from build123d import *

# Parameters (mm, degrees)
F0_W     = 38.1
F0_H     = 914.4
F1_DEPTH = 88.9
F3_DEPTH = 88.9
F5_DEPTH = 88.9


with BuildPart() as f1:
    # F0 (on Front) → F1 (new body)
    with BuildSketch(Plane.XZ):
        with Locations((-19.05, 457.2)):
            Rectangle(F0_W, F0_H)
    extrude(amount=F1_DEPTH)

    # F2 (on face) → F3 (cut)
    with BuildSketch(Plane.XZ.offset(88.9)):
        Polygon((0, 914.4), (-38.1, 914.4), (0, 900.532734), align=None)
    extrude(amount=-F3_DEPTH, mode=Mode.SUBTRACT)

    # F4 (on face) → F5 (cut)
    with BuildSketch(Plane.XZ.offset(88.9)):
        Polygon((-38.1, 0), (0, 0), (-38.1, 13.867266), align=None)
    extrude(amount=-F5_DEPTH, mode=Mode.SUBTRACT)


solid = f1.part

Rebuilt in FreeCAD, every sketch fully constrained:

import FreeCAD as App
import Part
import Sketcher

V = App.Vector
Q = App.Units.Quantity

doc = App.newDocument("Part")
body = doc.addObject("PartDesign::Body", "Body")

# Sketch on XZ plane
sketch1 = body.newObject("Sketcher::SketchObject", "Sketch")
sketch1.AttachmentSupport = (doc.getObject("XZ_Plane"), [""])
sketch1.MapMode = "FlatFace"
sketch1.addGeometry([
    Part.LineSegment(V(-38.1, 914.4, 0), V(-38.1, 0, 0)),
    Part.LineSegment(V(-38.1, 0, 0), V(0, 0, 0)),
    Part.LineSegment(V(0, 0, 0), V(0, 914.4, 0)),
    Part.LineSegment(V(0, 914.4, 0), V(-38.1, 914.4, 0)),
], False)
sketch1.addConstraint([
    Sketcher.Constraint("Coincident", 0, 2, 1, 1),
    Sketcher.Constraint("Coincident", 1, 2, 2, 1),
    Sketcher.Constraint("Coincident", 2, 2, 3, 1),
    Sketcher.Constraint("Coincident", 3, 2, 0, 1),
    Sketcher.Constraint("Vertical", 0),
    Sketcher.Constraint("Horizontal", 1),
    Sketcher.Constraint("Vertical", 2),
    Sketcher.Constraint("Horizontal", 3),
    Sketcher.Constraint("Coincident", 1, 2, -1, 1),
    Sketcher.Constraint("DistanceY", 0, 2, 0, 1, Q("36 in")),
    Sketcher.Constraint("DistanceX", 1, 1, 1, 2, Q("1.5 in")),
])
pad1 = body.newObject("PartDesign::Pad", "Pad")
pad1.Profile = sketch1
pad1.Length = Q("3.5 in")

# Sketch on XZ plane
sketch2 = body.newObject("Sketcher::SketchObject", "Sketch001")
sketch2.AttachmentSupport = (doc.getObject("XZ_Plane"), [""])
sketch2.MapMode = "FlatFace"
sketch2.AttachmentOffset = App.Placement(V(0, 0, 3.5 * 25.4), App.Rotation())
sketch2.addGeometry([
    Part.LineSegment(V(0, 914.4, 0), V(-38.1, 914.4, 0)),
    Part.LineSegment(V(-38.1, 914.4, 0), V(0, 900.532734, 0)),
    Part.LineSegment(V(0, 900.532734, 0), V(0, 914.4, 0)),
], False)
sketch2.addConstraint([
    Sketcher.Constraint("Coincident", 0, 2, 1, 1),
    Sketcher.Constraint("Coincident", 1, 2, 2, 1),
    Sketcher.Constraint("Coincident", 2, 2, 0, 1),
    Sketcher.Constraint("Horizontal", 0),
    Sketcher.Constraint("Vertical", 2),
    Sketcher.Constraint("PointOnObject", 1, 2, -2),
    Sketcher.Constraint("DistanceX", 0, 2, 0, 1, Q("1.5 in")),
    Sketcher.Constraint("DistanceY", -1, 1, 0, 2, Q("36 in")),
    Sketcher.Constraint("Angle", 1, Q("-20 deg")),
])
pocket1 = body.newObject("PartDesign::Pocket", "Pocket")
pocket1.Profile = sketch2
pocket1.Length = Q("3.5 in")

# Sketch on XZ plane
sketch3 = body.newObject("Sketcher::SketchObject", "Sketch002")
sketch3.AttachmentSupport = (doc.getObject("XZ_Plane"), [""])
sketch3.MapMode = "FlatFace"
sketch3.AttachmentOffset = App.Placement(V(0, 0, 3.5 * 25.4), App.Rotation())
sketch3.addGeometry([
    Part.LineSegment(V(-38.1, 0, 0), V(0, 0, 0)),
    Part.LineSegment(V(0, 0, 0), V(-38.1, 13.867266, 0)),
    Part.LineSegment(V(-38.1, 13.867266, 0), V(-38.1, 0, 0)),
], False)
sketch3.addConstraint([
    Sketcher.Constraint("Coincident", 0, 2, 1, 1),
    Sketcher.Constraint("Coincident", 1, 2, 2, 1),
    Sketcher.Constraint("Coincident", 2, 2, 0, 1),
    Sketcher.Constraint("Horizontal", 0),
    Sketcher.Constraint("Vertical", 2),
    Sketcher.Constraint("Coincident", 0, 2, -1, 1),
    Sketcher.Constraint("DistanceX", 0, 1, 0, 2, Q("1.5 in")),
    Sketcher.Constraint("Angle", 1, Q("160 deg")),
])
pocket2 = body.newObject("PartDesign::Pocket", "Pocket001")
pocket2.Profile = sketch3
pocket2.Length = Q("3.5 in")

doc.recompute()
